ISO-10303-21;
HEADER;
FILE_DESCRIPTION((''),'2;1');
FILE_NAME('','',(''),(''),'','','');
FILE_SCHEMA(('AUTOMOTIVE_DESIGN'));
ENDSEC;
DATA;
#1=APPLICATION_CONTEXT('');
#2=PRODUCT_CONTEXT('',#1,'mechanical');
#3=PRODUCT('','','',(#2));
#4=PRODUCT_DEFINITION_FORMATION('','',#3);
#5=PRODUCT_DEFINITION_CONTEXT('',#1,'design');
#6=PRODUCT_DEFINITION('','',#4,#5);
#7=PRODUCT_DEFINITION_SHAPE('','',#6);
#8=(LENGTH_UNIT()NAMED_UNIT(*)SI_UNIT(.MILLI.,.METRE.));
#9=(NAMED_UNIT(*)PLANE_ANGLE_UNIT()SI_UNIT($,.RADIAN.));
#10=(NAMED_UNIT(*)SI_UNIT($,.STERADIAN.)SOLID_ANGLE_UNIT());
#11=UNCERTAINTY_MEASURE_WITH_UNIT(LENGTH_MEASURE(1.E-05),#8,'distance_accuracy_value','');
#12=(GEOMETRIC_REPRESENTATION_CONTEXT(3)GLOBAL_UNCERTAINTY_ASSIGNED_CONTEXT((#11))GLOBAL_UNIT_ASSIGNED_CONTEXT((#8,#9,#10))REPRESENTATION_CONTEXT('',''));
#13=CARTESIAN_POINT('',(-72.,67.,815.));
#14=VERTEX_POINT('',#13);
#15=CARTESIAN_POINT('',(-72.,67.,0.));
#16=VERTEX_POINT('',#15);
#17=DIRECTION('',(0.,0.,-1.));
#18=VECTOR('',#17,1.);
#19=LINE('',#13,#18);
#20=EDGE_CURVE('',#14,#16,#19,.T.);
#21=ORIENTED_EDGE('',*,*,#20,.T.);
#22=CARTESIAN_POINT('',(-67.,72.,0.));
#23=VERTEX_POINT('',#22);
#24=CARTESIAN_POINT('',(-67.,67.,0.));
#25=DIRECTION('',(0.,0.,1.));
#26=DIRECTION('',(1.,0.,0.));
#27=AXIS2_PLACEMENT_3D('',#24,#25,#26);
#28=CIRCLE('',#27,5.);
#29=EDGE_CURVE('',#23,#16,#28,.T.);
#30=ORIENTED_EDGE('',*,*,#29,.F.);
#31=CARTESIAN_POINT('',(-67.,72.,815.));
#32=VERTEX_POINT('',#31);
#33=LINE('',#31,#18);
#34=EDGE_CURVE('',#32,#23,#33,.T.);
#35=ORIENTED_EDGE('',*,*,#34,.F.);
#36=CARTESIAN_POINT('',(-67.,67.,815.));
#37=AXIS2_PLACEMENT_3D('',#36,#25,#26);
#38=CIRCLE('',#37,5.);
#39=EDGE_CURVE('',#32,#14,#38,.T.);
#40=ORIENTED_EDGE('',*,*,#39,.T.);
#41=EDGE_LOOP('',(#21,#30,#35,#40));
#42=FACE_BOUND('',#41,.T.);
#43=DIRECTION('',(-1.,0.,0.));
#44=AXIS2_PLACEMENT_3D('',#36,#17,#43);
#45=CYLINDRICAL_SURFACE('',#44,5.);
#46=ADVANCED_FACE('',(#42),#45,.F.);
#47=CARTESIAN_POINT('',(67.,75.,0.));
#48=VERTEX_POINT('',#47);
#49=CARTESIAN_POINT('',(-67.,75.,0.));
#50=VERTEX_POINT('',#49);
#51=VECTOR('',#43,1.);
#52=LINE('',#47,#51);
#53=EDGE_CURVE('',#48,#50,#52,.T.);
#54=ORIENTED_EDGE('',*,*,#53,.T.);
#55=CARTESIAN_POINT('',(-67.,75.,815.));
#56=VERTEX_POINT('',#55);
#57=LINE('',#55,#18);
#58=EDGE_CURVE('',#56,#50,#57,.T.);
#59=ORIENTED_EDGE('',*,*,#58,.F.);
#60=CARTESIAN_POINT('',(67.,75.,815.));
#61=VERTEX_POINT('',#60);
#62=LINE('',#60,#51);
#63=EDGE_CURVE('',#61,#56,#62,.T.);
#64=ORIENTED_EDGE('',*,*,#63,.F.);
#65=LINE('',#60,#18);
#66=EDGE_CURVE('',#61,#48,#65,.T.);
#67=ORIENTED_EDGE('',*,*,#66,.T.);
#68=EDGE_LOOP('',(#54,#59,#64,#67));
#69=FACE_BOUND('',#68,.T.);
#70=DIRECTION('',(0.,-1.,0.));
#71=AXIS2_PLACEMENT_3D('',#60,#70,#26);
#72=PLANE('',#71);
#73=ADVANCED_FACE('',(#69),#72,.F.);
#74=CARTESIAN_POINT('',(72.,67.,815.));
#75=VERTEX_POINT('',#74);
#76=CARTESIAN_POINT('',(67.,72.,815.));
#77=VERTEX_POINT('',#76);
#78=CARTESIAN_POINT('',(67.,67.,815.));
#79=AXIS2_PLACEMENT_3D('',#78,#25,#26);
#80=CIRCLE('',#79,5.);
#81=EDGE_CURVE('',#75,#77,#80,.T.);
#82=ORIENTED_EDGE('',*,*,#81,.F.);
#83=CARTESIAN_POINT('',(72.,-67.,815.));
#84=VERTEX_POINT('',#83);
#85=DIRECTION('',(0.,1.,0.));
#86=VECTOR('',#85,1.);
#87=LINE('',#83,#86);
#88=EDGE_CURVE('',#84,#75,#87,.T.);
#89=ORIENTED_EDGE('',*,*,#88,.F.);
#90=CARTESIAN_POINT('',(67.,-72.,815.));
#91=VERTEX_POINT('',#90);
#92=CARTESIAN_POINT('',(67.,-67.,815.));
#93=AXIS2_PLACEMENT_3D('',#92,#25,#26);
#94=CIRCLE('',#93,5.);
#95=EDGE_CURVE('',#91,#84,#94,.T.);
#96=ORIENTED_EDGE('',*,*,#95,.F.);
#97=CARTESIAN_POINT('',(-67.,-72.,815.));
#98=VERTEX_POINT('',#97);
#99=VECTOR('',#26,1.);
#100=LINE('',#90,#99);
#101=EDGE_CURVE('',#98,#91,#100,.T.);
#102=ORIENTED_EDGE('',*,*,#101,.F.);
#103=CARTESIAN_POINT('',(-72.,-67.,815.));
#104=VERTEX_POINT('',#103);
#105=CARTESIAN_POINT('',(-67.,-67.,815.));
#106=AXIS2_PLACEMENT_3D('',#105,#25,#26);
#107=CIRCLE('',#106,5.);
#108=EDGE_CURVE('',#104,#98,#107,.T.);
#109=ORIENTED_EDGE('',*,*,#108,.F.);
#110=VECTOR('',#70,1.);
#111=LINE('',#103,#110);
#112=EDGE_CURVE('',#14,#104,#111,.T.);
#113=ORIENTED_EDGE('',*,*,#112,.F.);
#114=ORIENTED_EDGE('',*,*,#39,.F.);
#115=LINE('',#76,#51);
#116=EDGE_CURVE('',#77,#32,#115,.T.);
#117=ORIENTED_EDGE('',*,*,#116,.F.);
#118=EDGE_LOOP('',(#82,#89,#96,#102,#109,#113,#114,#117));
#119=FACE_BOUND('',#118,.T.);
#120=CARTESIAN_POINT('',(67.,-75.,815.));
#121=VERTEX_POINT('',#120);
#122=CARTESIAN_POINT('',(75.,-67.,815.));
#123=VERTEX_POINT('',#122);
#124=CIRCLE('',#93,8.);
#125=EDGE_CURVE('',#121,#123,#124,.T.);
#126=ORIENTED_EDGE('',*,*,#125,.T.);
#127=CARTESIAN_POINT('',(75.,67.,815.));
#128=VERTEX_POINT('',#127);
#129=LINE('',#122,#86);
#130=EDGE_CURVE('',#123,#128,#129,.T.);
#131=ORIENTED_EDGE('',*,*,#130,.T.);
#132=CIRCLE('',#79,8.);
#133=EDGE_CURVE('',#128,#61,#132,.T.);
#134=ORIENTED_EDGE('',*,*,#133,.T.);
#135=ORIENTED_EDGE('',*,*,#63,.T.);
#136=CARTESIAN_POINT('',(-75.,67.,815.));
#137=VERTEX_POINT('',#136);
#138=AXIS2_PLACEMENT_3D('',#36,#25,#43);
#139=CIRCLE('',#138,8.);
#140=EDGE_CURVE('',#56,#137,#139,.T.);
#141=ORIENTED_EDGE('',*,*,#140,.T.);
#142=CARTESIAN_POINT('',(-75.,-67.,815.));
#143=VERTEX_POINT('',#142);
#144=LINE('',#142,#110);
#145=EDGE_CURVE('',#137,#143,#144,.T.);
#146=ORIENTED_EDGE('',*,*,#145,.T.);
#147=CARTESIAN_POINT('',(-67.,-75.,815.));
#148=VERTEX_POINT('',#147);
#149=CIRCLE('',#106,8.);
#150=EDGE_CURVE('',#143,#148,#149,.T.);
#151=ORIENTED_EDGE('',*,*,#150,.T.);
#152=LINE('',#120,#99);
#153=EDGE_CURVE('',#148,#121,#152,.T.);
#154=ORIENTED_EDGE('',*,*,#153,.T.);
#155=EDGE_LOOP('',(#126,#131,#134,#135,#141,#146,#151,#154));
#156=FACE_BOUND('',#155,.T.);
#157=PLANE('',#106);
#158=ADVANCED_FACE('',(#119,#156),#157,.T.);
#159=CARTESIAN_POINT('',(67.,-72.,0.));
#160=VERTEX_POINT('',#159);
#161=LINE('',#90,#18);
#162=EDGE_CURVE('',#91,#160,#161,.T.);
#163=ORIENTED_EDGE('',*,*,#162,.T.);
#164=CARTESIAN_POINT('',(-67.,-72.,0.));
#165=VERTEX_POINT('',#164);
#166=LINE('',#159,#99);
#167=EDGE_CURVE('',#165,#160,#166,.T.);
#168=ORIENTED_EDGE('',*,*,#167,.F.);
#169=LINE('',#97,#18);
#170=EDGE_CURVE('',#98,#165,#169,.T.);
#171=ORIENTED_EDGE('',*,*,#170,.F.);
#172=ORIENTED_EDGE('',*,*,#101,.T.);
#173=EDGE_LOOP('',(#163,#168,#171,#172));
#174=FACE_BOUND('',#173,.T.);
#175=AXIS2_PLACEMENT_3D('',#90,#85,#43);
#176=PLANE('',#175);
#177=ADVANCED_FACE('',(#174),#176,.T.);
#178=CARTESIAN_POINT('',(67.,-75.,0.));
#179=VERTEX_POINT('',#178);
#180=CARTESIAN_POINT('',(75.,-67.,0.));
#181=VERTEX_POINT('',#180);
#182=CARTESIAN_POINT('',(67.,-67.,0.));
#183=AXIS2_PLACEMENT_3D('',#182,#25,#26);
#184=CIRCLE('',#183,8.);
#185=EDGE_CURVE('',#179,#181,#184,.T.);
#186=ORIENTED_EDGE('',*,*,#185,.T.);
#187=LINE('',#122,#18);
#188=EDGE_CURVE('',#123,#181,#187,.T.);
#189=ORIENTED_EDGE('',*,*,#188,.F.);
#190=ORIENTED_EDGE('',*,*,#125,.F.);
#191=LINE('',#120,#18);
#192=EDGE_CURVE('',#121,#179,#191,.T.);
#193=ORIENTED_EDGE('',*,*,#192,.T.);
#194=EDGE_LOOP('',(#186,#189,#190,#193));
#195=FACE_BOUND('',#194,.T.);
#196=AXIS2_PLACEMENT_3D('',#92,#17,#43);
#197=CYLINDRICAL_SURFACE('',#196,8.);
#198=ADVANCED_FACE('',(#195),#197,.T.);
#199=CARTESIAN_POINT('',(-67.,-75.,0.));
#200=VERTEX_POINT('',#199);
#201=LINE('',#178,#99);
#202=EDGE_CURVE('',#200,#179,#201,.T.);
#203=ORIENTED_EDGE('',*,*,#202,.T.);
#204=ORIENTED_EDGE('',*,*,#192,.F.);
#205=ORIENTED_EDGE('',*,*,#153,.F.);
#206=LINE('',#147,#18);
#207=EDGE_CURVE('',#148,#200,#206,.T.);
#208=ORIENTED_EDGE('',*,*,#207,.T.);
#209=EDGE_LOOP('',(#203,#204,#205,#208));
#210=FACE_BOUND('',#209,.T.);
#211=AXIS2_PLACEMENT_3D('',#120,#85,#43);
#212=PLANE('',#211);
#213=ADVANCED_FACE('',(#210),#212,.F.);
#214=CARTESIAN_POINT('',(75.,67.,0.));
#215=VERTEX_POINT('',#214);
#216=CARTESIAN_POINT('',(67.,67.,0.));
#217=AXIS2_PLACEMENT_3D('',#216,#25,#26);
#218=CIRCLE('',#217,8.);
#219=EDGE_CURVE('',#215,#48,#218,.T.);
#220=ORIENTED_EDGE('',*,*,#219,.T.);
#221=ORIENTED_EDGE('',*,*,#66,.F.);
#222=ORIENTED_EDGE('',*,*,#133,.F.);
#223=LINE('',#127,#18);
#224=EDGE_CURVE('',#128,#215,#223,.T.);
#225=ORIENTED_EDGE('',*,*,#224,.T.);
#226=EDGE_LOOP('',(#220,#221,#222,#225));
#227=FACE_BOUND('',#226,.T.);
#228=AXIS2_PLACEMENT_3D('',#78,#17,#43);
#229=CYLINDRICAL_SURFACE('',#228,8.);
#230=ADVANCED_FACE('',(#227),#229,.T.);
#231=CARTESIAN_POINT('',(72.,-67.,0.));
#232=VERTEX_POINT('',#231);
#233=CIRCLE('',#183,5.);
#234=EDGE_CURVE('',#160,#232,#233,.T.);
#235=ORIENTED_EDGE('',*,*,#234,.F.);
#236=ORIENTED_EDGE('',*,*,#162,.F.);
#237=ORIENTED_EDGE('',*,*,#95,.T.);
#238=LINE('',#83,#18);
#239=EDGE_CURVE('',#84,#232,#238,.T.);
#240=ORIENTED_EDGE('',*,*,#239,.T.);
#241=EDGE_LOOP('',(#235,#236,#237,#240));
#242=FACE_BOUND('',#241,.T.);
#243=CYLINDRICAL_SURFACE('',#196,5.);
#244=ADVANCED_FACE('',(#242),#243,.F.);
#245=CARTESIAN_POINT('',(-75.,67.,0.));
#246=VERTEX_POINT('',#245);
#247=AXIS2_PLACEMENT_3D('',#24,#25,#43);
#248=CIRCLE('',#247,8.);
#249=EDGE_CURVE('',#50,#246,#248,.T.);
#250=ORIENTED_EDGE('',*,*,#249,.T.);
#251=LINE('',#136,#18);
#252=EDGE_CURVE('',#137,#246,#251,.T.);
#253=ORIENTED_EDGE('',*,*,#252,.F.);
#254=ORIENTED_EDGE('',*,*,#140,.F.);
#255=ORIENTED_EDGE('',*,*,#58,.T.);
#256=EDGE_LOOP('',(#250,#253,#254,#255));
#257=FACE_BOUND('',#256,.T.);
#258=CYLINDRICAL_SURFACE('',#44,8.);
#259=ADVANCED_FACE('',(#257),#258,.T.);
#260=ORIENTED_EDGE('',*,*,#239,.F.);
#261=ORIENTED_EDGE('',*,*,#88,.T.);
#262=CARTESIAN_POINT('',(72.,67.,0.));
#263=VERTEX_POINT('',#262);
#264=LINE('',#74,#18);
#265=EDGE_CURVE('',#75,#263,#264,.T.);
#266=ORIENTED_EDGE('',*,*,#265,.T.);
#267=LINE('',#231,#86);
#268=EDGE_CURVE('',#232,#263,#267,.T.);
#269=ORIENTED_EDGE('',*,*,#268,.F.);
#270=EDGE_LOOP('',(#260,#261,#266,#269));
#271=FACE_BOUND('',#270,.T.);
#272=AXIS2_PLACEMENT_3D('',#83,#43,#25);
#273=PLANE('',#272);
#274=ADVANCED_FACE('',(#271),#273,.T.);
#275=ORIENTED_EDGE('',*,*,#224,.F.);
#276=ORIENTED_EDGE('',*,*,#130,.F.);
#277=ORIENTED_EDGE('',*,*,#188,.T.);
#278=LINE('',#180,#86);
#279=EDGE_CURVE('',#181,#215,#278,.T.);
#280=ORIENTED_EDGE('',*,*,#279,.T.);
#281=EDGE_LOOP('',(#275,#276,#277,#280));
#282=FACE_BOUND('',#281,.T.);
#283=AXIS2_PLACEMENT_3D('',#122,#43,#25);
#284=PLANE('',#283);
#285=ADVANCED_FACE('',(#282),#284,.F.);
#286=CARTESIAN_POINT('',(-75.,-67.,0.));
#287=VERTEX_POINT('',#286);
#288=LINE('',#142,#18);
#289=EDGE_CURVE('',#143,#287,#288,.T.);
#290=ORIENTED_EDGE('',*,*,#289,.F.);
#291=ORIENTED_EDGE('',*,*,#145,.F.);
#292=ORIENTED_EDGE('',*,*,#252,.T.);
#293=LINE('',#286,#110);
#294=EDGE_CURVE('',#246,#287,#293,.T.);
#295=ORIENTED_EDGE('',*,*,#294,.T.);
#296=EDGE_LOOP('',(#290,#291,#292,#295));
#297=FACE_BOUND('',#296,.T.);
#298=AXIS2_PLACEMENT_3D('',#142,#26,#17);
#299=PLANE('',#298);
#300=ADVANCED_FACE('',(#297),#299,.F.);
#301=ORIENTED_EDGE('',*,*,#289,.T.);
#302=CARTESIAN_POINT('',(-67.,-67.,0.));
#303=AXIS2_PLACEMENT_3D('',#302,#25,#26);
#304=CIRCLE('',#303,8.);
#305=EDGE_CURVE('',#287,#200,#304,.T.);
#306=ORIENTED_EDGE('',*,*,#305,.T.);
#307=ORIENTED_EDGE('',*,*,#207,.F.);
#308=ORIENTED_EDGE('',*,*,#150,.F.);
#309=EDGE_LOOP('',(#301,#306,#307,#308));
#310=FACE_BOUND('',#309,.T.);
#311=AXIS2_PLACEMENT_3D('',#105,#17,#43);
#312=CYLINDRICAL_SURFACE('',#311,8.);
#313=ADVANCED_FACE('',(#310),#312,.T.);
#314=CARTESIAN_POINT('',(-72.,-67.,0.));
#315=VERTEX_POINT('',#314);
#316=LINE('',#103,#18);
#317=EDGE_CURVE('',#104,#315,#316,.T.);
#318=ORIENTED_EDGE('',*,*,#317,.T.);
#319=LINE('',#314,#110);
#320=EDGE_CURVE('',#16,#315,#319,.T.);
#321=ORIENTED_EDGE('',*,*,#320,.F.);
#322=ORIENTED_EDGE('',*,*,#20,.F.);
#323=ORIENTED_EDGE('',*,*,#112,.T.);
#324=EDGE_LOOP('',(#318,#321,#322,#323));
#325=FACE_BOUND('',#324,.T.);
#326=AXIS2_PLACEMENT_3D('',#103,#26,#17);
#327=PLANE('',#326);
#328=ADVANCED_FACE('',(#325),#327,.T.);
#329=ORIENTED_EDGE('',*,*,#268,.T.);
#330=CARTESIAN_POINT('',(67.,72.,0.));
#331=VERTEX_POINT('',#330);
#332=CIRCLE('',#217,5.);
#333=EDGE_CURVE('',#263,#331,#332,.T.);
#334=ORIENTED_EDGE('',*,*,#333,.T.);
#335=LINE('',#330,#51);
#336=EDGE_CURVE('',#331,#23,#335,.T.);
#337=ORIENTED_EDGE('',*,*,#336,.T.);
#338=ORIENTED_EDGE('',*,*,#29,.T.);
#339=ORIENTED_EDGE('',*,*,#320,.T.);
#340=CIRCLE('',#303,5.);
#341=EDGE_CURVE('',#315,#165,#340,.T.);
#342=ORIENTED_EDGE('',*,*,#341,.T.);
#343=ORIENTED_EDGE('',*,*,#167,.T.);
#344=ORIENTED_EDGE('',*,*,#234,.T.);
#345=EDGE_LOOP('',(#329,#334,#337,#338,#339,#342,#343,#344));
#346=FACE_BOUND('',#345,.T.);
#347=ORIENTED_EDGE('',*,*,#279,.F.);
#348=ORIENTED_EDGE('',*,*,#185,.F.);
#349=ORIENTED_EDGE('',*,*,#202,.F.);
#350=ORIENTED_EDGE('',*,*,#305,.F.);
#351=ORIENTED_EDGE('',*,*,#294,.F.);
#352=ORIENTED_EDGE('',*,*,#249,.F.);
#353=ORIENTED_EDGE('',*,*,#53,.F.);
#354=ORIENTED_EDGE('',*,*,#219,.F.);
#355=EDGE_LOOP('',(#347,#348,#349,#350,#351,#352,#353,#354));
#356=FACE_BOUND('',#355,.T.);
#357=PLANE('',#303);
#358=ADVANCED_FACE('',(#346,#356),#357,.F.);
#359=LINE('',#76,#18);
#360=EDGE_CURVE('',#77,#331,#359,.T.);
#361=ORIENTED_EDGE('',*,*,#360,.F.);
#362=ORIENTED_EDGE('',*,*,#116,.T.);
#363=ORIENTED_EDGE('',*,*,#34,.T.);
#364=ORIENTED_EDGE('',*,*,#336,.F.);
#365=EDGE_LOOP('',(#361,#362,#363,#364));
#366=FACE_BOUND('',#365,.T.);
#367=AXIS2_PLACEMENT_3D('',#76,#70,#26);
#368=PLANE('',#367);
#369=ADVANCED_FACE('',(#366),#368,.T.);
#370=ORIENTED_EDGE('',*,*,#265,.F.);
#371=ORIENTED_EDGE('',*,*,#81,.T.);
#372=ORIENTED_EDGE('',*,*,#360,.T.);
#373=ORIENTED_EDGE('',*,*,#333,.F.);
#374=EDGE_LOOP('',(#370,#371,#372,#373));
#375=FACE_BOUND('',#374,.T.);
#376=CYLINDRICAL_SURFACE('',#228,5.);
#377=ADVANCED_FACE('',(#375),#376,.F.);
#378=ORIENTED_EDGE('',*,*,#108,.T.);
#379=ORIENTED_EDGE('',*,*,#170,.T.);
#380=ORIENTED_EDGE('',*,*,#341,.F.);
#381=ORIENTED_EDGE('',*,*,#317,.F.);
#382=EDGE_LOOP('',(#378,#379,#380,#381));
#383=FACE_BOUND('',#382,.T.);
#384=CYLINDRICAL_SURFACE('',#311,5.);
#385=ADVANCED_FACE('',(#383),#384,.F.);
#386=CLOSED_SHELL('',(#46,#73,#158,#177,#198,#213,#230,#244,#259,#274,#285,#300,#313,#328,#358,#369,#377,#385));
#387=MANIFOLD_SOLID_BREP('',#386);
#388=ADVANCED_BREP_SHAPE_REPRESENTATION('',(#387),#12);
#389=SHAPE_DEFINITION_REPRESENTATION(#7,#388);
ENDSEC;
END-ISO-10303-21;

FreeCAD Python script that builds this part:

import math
import FreeCAD as App
import Part
import Sketcher

V = App.Vector
Q = App.Units.Quantity

doc = App.newDocument("Part")
body = doc.addObject("PartDesign::Body", "Body")

# Sketch on XY plane
sketch1 = doc.addObject("Sketcher::SketchObject", "Sketch")
body.addObject(sketch1)
sketch1.AttachmentSupport = (doc.XY_Plane, [""])
sketch1.MapMode = "FlatFace"
sketch1.addGeometry(Part.LineSegment(V(67, 75, 0), V(-67, 75, 0)), False)
sketch1.addGeometry(Part.ArcOfCircle(Part.Circle(V(-67, 67, 0), V(0, 0, 1), 8), math.radians(90), math.radians(180)), False)
sketch1.addGeometry(Part.LineSegment(V(-75, 67, 0), V(-75, -67, 0)), False)
sketch1.addGeometry(Part.ArcOfCircle(Part.Circle(V(-67, -67, 0), V(0, 0, 1), 8), math.radians(-180), math.radians(-90)), False)
sketch1.addGeometry(Part.LineSegment(V(-67, -75, 0), V(67, -75, 0)), False)
sketch1.addGeometry(Part.ArcOfCircle(Part.Circle(V(67, -67, 0), V(0, 0, 1), 8), math.radians(-90), math.radians(0)), False)
sketch1.addGeometry(Part.LineSegment(V(75, -67, 0), V(75, 67, 0)), False)
sketch1.addGeometry(Part.ArcOfCircle(Part.Circle(V(67, 67, 0), V(0, 0, 1), 8), math.radians(0), math.radians(90)), False)
sketch1.addGeometry(Part.LineSegment(V(-67, 72, 0), V(67, 72, 0)), False)
sketch1.addGeometry(Part.ArcOfCircle(Part.Circle(V(67, 67, 0), V(0, 0, 1), 5), math.radians(0), math.radians(90)), False)
sketch1.addGeometry(Part.LineSegment(V(72, 67, 0), V(72, -67, 0)), False)
sketch1.addGeometry(Part.ArcOfCircle(Part.Circle(V(67, -67, 0), V(0, 0, 1), 5), math.radians(-90), math.radians(0)), False)
sketch1.addGeometry(Part.LineSegment(V(67, -72, 0), V(-67, -72, 0)), False)
sketch1.addGeometry(Part.ArcOfCircle(Part.Circle(V(-67, -67, 0), V(0, 0, 1), 5), math.radians(180), math.radians(270)), False)
sketch1.addGeometry(Part.LineSegment(V(-72, -67, 0), V(-72, 67, 0)), False)
sketch1.addGeometry(Part.ArcOfCircle(Part.Circle(V(-67, 67, 0), V(0, 0, 1), 5), math.radians(90), math.radians(180)), False)
sketch1.addConstraint(Sketcher.Constraint("Tangent", 0, 2, 1, 1))
sketch1.addConstraint(Sketcher.Constraint("Tangent", 1, 2, 2, 1))
sketch1.addConstraint(Sketcher.Constraint("Tangent", 2, 2, 3, 1))
sketch1.addConstraint(Sketcher.Constraint("Tangent", 3, 2, 4, 1))
sketch1.addConstraint(Sketcher.Constraint("Tangent", 4, 2, 5, 1))
sketch1.addConstraint(Sketcher.Constraint("Tangent", 5, 2, 6, 1))
sketch1.addConstraint(Sketcher.Constraint("Tangent", 6, 2, 7, 1))
sketch1.addConstraint(Sketcher.Constraint("Tangent", 7, 2, 0, 1))
sketch1.addConstraint(Sketcher.Constraint("Tangent", 8, 2, 9, 2))
sketch1.addConstraint(Sketcher.Constraint("Tangent", 9, 1, 10, 1))
sketch1.addConstraint(Sketcher.Constraint("Tangent", 10, 2, 11, 2))
sketch1.addConstraint(Sketcher.Constraint("Tangent", 11, 1, 12, 1))
sketch1.addConstraint(Sketcher.Constraint("Tangent", 12, 2, 13, 2))
sketch1.addConstraint(Sketcher.Constraint("Tangent", 13, 1, 14, 1))
sketch1.addConstraint(Sketcher.Constraint("Tangent", 14, 2, 15, 2))
sketch1.addConstraint(Sketcher.Constraint("Tangent", 15, 1, 8, 1))
sketch1.addConstraint(Sketcher.Constraint("Horizontal", 0))
sketch1.addConstraint(Sketcher.Constraint("Vertical", 2))
sketch1.addConstraint(Sketcher.Constraint("Horizontal", 4))
sketch1.addConstraint(Sketcher.Constraint("Vertical", 6))
sketch1.addConstraint(Sketcher.Constraint("Horizontal", 8))
sketch1.addConstraint(Sketcher.Constraint("Vertical", 10))
sketch1.addConstraint(Sketcher.Constraint("Horizontal", 12))
sketch1.addConstraint(Sketcher.Constraint("Vertical", 14))
sketch1.addConstraint(Sketcher.Constraint("Coincident", 9, 3, 7, 3))
sketch1.addConstraint(Sketcher.Constraint("Coincident", 11, 3, 5, 3))
sketch1.addConstraint(Sketcher.Constraint("Coincident", 13, 3, 3, 3))
sketch1.addConstraint(Sketcher.Constraint("Equal", 1, 3))
sketch1.addConstraint(Sketcher.Constraint("Equal", 3, 5))
sketch1.addConstraint(Sketcher.Constraint("Equal", 5, 7))
sketch1.addConstraint(Sketcher.Constraint("Equal", 13, 15))
sketch1.addConstraint(Sketcher.Constraint("Symmetric", 1, 3, 5, 3, -1, 1))
sketch1.addConstraint(Sketcher.Constraint("Equal", 12, 2))
sketch1.addConstraint(Sketcher.Constraint("Radius", 1, Q("8 mm")))
sketch1.addConstraint(Sketcher.Constraint("Radius", 9, Q("5 mm")))
sketch1.addConstraint(Sketcher.Constraint("DistanceX", 0, 2, 0, 1, Q("134 mm")))
pad1 = doc.addObject("PartDesign::Pad", "Pad")
body.addObject(pad1)
pad1.Profile = sketch1
pad1.Length = 815

doc.recompute()
